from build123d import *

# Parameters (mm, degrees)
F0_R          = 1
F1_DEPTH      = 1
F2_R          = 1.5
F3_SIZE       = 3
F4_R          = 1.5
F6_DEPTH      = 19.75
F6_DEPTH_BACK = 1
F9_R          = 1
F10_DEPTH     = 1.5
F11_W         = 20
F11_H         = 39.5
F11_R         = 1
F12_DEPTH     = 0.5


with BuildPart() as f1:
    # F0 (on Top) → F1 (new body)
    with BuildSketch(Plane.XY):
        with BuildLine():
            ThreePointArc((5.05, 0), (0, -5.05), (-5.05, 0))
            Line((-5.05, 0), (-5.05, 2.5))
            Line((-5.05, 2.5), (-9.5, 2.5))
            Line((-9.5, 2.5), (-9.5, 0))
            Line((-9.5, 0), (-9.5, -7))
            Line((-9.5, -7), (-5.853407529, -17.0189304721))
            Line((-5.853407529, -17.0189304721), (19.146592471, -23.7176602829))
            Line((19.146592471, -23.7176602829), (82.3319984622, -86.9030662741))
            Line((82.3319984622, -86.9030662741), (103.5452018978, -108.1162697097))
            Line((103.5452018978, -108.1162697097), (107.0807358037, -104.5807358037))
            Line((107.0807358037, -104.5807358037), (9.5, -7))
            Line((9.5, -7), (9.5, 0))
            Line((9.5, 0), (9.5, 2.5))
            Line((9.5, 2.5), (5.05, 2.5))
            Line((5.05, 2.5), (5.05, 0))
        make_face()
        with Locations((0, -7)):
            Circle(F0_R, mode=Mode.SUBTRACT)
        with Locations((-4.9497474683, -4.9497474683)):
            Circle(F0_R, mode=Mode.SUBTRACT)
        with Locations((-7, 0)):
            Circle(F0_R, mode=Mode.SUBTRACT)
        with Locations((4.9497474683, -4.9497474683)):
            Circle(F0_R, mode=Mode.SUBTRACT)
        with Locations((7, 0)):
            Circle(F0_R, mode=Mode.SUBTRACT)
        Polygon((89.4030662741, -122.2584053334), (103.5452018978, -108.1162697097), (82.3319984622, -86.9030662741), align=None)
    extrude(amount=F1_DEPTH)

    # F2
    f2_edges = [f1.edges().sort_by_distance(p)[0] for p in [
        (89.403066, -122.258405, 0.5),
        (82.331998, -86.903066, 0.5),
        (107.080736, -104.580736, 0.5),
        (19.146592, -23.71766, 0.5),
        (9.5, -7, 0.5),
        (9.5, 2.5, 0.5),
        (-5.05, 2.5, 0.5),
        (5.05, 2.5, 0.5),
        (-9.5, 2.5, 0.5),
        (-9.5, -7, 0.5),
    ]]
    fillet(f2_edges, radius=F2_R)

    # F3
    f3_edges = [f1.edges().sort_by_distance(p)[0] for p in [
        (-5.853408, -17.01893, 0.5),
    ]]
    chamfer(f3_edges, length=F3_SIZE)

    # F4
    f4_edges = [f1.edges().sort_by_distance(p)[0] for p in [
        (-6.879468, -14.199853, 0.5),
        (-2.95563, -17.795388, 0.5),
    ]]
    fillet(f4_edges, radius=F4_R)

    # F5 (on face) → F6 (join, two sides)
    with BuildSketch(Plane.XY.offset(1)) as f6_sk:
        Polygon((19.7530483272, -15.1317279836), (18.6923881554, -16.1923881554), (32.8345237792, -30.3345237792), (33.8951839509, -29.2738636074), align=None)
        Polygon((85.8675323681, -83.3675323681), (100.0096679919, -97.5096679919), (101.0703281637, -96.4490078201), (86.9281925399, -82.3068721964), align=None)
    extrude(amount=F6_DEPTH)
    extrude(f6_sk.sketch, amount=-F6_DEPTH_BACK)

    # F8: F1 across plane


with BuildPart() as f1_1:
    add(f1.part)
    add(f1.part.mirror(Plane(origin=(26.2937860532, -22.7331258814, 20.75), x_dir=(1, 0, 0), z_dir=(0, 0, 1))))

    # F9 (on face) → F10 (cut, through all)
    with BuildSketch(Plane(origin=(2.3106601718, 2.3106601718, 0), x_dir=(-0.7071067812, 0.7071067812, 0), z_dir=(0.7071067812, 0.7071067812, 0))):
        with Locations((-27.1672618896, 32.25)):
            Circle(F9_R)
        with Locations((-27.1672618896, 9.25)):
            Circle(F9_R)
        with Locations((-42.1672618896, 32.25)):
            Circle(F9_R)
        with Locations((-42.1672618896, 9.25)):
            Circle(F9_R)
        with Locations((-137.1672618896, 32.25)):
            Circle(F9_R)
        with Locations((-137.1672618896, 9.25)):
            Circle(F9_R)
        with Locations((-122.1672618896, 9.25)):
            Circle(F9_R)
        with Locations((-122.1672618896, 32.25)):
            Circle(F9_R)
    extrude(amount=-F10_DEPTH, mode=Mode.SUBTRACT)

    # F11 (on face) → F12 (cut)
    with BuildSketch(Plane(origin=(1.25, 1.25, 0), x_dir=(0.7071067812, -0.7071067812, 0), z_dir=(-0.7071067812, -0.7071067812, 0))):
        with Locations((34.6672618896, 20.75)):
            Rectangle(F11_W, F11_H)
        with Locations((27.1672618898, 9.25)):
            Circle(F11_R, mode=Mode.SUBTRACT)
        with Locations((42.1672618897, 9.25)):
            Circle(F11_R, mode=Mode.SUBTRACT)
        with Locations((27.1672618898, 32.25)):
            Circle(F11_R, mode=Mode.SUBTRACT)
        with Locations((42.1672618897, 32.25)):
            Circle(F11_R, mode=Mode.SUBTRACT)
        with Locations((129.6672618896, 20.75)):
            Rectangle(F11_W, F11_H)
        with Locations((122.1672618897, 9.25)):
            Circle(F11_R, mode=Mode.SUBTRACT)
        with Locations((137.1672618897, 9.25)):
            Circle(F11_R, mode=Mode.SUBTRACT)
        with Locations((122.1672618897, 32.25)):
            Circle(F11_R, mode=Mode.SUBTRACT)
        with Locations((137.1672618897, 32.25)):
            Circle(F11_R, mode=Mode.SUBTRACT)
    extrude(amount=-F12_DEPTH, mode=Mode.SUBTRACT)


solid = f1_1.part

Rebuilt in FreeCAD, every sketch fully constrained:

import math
import FreeCAD as App
import Part
import Sketcher
Q = App.Units.Quantity


def edges_at(feature, points):
    """Names of the edges that pass closest to the given points."""
    edges = feature.Shape.Edges
    near = lambda p: min(range(len(edges)), key=lambda i: edges[i].distToShape(Part.Vertex(*p))[0])
    return sorted({f"Edge{near(p) + 1}" for p in points})

doc = App.newDocument("Part")
body = doc.addObject("PartDesign::Body", "Body")

sketch1 = doc.addObject("Sketcher::SketchObject", "Sketch")
body.addObject(sketch1)
sketch1.AttachmentSupport = (doc.XY_Plane, [""])
sketch1.MapMode = "FlatFace"
sketch1.addGeometry([
    Part.ArcOfCircle(Part.Circle(App.Vector(0, 0, 0), App.Vector(0, 0, 1), 5.05), math.radians(180), math.radians(360)),
    Part.LineSegment(App.Vector(-5.05, 0, 0), App.Vector(-5.05, 2.5, 0)),
    Part.LineSegment(App.Vector(-5.05, 2.5, 0), App.Vector(-9.5, 2.5, 0)),
    Part.LineSegment(App.Vector(-9.5, 2.5, 0), App.Vector(-9.5, -7, 0)),
    Part.LineSegment(App.Vector(-9.5, -7, 0), App.Vector(-5.853408, -17.01893, 0)),
    Part.LineSegment(App.Vector(-5.853408, -17.01893, 0), App.Vector(19.146592, -23.71766, 0)),
    Part.LineSegment(App.Vector(19.146592, -23.71766, 0), App.Vector(82.331998, -86.903066, 0)),
    Part.LineSegment(App.Vector(82.331998, -86.903066, 0), App.Vector(89.403066, -122.258405, 0)),
    Part.LineSegment(App.Vector(89.403066, -122.258405, 0), App.Vector(103.545202, -108.11627, 0)),
    Part.LineSegment(App.Vector(103.545202, -108.11627, 0), App.Vector(107.080736, -104.580736, 0)),
    Part.LineSegment(App.Vector(107.080736, -104.580736, 0), App.Vector(9.5, -7, 0)),
    Part.LineSegment(App.Vector(9.5, -7, 0), App.Vector(9.5, 2.5, 0)),
    Part.LineSegment(App.Vector(9.5, 2.5, 0), App.Vector(5.05, 2.5, 0)),
    Part.LineSegment(App.Vector(5.05, 2.5, 0), App.Vector(5.05, 0, 0)),
    Part.Circle(App.Vector(-4.949747, -4.949747, 0), App.Vector(0, 0, 1), 1),
    Part.Circle(App.Vector(0, -7, 0), App.Vector(0, 0, 1), 1),
    Part.Circle(App.Vector(4.949747, -4.949747, 0), App.Vector(0, 0, 1), 1),
    Part.Circle(App.Vector(-7, 0, 0), App.Vector(0, 0, 1), 1),
    Part.Circle(App.Vector(7, 0, 0), App.Vector(0, 0, 1), 1),
], False)
sketch1.addConstraint([
    Sketcher.Constraint("Tangent", 0, 1, 1, 1),
    Sketcher.Constraint("Coincident", 1, 2, 2, 1),
    Sketcher.Constraint("Coincident", 2, 2, 3, 1),
    Sketcher.Constraint("Coincident", 3, 2, 4, 1),
    Sketcher.Constraint("Coincident", 4, 2, 5, 1),
    Sketcher.Constraint("Coincident", 5, 2, 6, 1),
    Sketcher.Constraint("Coincident", 6, 2, 7, 1),
    Sketcher.Constraint("Coincident", 7, 2, 8, 1),
    Sketcher.Constraint("Coincident", 8, 2, 9, 1),
    Sketcher.Constraint("Coincident", 9, 2, 10, 1),
    Sketcher.Constraint("Coincident", 10, 2, 11, 1),
    Sketcher.Constraint("Coincident", 11, 2, 12, 1),
    Sketcher.Constraint("Coincident", 12, 2, 13, 1),
    Sketcher.Constraint("Tangent", 13, 2, 0, 2),
    Sketcher.Constraint("Vertical", 1),
    Sketcher.Constraint("Horizontal", 2),
    Sketcher.Constraint("Vertical", 3),
    Sketcher.Constraint("Vertical", 11),
    Sketcher.Constraint("Horizontal", 12),
    Sketcher.Constraint("Vertical", 13),
    Sketcher.Constraint("Coincident", 0, 3, -1, 1),
    Sketcher.Constraint("Equal", 14, 15),
    Sketcher.Constraint("Equal", 15, 16),
    Sketcher.Constraint("Equal", 16, 17),
    Sketcher.Constraint("Equal", 17, 18),
    Sketcher.Constraint("Symmetric", 17, 3, 18, 3, -1, 1),
    Sketcher.Constraint("Symmetric", 14, 3, 16, 3, -2),
    Sketcher.Constraint("Symmetric", 3, 2, 10, 2, -2),
    Sketcher.Constraint("PointOnObject", 15, 3, -2),
    Sketcher.Constraint("PointOnObject", 17, 3, -1),
    Sketcher.Constraint("Perpendicular", 6, 8),
    Sketcher.Constraint("Parallel", 8, 9),
    Sketcher.Constraint("Perpendicular", 9, 10),
    Sketcher.Constraint("Horizontal", 15, 3, 3, 2),
    Sketcher.Constraint("Horizontal", 2, 2, 11, 2),
    Sketcher.Constraint("Diameter", 14, Q("2 mm")),
    Sketcher.Constraint("Angle", 4, Q("-70 deg")),
    Sketcher.Constraint("Angle", 5, Q("-15 deg")),
    Sketcher.Constraint("Angle", 6, Q("-45 deg")),
    Sketcher.Constraint("Radius", 0, Q("5.05 mm")),
    Sketcher.Constraint("Distance", 8, Q("20 mm")),
    Sketcher.Constraint("Distance", 9, Q("5 mm")),
    Sketcher.Constraint("Distance", 10, Q("138 mm")),
    Sketcher.Constraint("DistanceY", 1, 1, 1, 2, Q("2.5 mm")),
    Sketcher.Constraint("DistanceY", 3, 2, 3, 1, Q("9.5 mm")),
    Sketcher.Constraint("DistanceX", 17, 3, -1, 1, Q("7 mm")),
    Sketcher.Constraint("DistanceX", 4, 2, 5, 2, Q("25 mm")),
    Sketcher.Constraint("DistanceX", 2, 2, 2, 1, Q("4.45 mm")),
    Sketcher.Constraint("DistanceX", -1, 1, 6, 2, Q("82.331998 mm")),
    Sketcher.Constraint("Distance", 6, Q("89.357658 mm")),
    Sketcher.Constraint("DistanceX", 4, 2, 14, 3, Q("0.90366 mm")),
    Sketcher.Constraint("DistanceY", 6, 2, 16, 3, Q("81.953319 mm")),
])
pad1 = doc.addObject("PartDesign::Pad", "Pad")
body.addObject(pad1)
pad1.Profile = sketch1
pad1.Length = 1
doc.recompute()

fillet = doc.addObject("PartDesign::Fillet", "Fillet")
body.addObject(fillet)
fillet.Base = (pad1, edges_at(pad1, [
    (89.403, -122.258, 0.5),
    (82.332, -86.903, 0.5),
    (107.081, -104.581, 0.5),
    (19.147, -23.718, 0.5),
    (9.5, -7, 0.5),
    (9.5, 2.5, 0.5),
    (-5.05, 2.5, 0.5),
    (5.05, 2.5, 0.5),
    (-9.5, 2.5, 0.5),
    (-9.5, -7, 0.5),
]))
fillet.Radius = 1.5
doc.recompute()

chamfer = doc.addObject("PartDesign::Chamfer", "Chamfer")
body.addObject(chamfer)
chamfer.Base = (fillet, edges_at(fillet, [(-5.853, -17.019, 0.5)]))
chamfer.Size = 3
doc.recompute()

fillet2 = doc.addObject("PartDesign::Fillet", "Fillet001")
body.addObject(fillet2)
fillet2.Base = (chamfer, edges_at(chamfer, [(-6.879, -14.2, 0.5), (-2.956, -17.795, 0.5)]))
fillet2.Radius = 1.5

sketch2 = doc.addObject("Sketcher::SketchObject", "Sketch001")
body.addObject(sketch2)
sketch2.AttachmentSupport = (doc.XY_Plane, [""])
sketch2.MapMode = "FlatFace"
sketch2.AttachmentOffset = App.Placement(App.Vector(0, 0, 1), App.Rotation())
sketch2.addGeometry([
    Part.LineSegment(App.Vector(19.753048, -15.131728, 0), App.Vector(18.692388, -16.192388, 0)),
    Part.LineSegment(App.Vector(18.692388, -16.192388, 0), App.Vector(32.834524, -30.334524, 0)),
    Part.LineSegment(App.Vector(32.834524, -30.334524, 0), App.Vector(33.895184, -29.273864, 0)),
    Part.LineSegment(App.Vector(33.895184, -29.273864, 0), App.Vector(19.753048, -15.131728, 0)),
    Part.LineSegment(App.Vector(85.867532, -83.367532, 0), App.Vector(100.009668, -97.509668, 0)),
    Part.LineSegment(App.Vector(100.009668, -97.509668, 0), App.Vector(101.070328, -96.449008, 0)),
    Part.LineSegment(App.Vector(101.070328, -96.449008, 0), App.Vector(86.928193, -82.306872, 0)),
    Part.LineSegment(App.Vector(86.928193, -82.306872, 0), App.Vector(85.867532, -83.367532, 0)),
], False)
sketch2.addConstraint([
    Sketcher.Constraint("Coincident", 0, 2, 1, 1),
    Sketcher.Constraint("Coincident", 1, 2, 2, 1),
    Sketcher.Constraint("Coincident", 2, 2, 3, 1),
    Sketcher.Constraint("Coincident", 3, 2, 0, 1),
    Sketcher.Constraint("Coincident", 4, 2, 5, 1),
    Sketcher.Constraint("Coincident", 5, 2, 6, 1),
    Sketcher.Constraint("Coincident", 6, 2, 7, 1),
    Sketcher.Constraint("Coincident", 7, 2, 4, 1),
    Sketcher.Constraint("Perpendicular", 0, 1),
    Sketcher.Constraint("Perpendicular", 1, 2),
    Sketcher.Constraint("Perpendicular", 2, 3),
    Sketcher.Constraint("Parallel", 3, 4),
    Sketcher.Constraint("Perpendicular", 4, 5),
    Sketcher.Constraint("Perpendicular", 5, 6),
    Sketcher.Constraint("Perpendicular", 6, 7),
    Sketcher.Constraint("Equal", 3, 4),
    Sketcher.Constraint("Equal", 2, 5),
    Sketcher.Constraint("Angle", 0, Q("-135 deg")),
    Sketcher.Constraint("Distance", 1, Q("20 mm")),
    Sketcher.Constraint("Distance", 0, Q("1.5 mm")),
    Sketcher.Constraint("DistanceX", -1, 1, 0, 2, Q("18.692388 mm")),
    Sketcher.Constraint("DistanceY", 0, 2, -1, 1, Q("16.192388 mm")),
    Sketcher.Constraint("DistanceX", -1, 1, 5, 2, Q("101.070328 mm")),
    Sketcher.Constraint("DistanceY", 4, 2, 0, 2, Q("81.31728 mm")),
])
pad2 = doc.addObject("PartDesign::Pad", "Pad001")
body.addObject(pad2)
pad2.Profile = sketch2
pad2.Type = "TwoLengths"
pad2.Length = 19.75
pad2.Length2 = 1
body2 = doc.addObject("PartDesign::Body", "Body001")
doc.recompute()

body2.BaseFeature = body
doc.recompute()

mirroring = doc.addObject("Part::Mirroring", "Mirroring")
mirroring.Source = body
mirroring.Base = App.Vector(26.293786, -22.733126, 20.75)
mirroring.Normal = App.Vector(0, 0, 1)
body3 = doc.addObject("PartDesign::Body", "Body002")
body3.BaseFeature = mirroring
boolean = doc.addObject("PartDesign::Boolean", "Boolean")
body2.addObject(boolean)
boolean.Type = "Fuse"
boolean.addObjects([body3])
doc.recompute()

sketch3 = doc.addObject("Sketcher::SketchObject", "Sketch002")
body2.addObject(sketch3)
sketch3.Placement = App.Placement(App.Vector(2.31066, 2.31066, 0), App.Rotation(App.Vector(-0.707106781, 0.707106781, 0), App.Vector(0, 0, 0.999999999), App.Vector(0.707106781, 0.707106781, 0), "ZXY"))
sketch3.addGeometry([
    Part.Circle(App.Vector(-27.167262, 32.25, 0), App.Vector(0, 0, 1), 1),
    Part.Circle(App.Vector(-27.167262, 9.25, 0), App.Vector(0, 0, 1), 1),
    Part.Circle(App.Vector(-42.167262, 32.25, 0), App.Vector(0, 0, 1), 1),
    Part.Circle(App.Vector(-42.167262, 9.25, 0), App.Vector(0, 0, 1), 1),
    Part.Circle(App.Vector(-137.167262, 32.25, 0), App.Vector(0, 0, 1), 1),
    Part.Circle(App.Vector(-137.167262, 9.25, 0), App.Vector(0, 0, 1), 1),
    Part.Circle(App.Vector(-122.167262, 9.25, 0), App.Vector(0, 0, 1), 1),
    Part.Circle(App.Vector(-122.167262, 32.25, 0), App.Vector(0, 0, 1), 1),
], False)
sketch3.addConstraint([
    Sketcher.Constraint("Equal", 0, 1),
    Sketcher.Constraint("Equal", 1, 2),
    Sketcher.Constraint("Equal", 2, 3),
    Sketcher.Constraint("Equal", 3, 4),
    Sketcher.Constraint("Equal", 4, 5),
    Sketcher.Constraint("Equal", 5, 6),
    Sketcher.Constraint("Equal", 6, 7),
    Sketcher.Constraint("Horizontal", 0, 3, 2, 3),
    Sketcher.Constraint("Horizontal", 1, 3, 3, 3),
    Sketcher.Constraint("Horizontal", 2, 3, 4, 3),
    Sketcher.Constraint("Horizontal", 3, 3, 5, 3),
    Sketcher.Constraint("Horizontal", 5, 3, 6, 3),
    Sketcher.Constraint("Horizontal", 4, 3, 7, 3),
    Sketcher.Constraint("Vertical", 0, 3, 1, 3),
    Sketcher.Constraint("Vertical", 2, 3, 3, 3),
    Sketcher.Constraint("Vertical", 4, 3, 5, 3),
    Sketcher.Constraint("Vertical", 6, 3, 7, 3),
    Sketcher.Constraint("Diameter", 0, Q("2 mm")),
    Sketcher.Constraint("DistanceY", 1, 3, 0, 3, Q("23 mm")),
    Sketcher.Constraint("DistanceX", 2, 3, 0, 3, Q("15 mm")),
    Sketcher.Constraint("DistanceX", 4, 3, 2, 3, Q("95 mm")),
    Sketcher.Constraint("DistanceX", 5, 3, 6, 3, Q("15 mm")),
    Sketcher.Constraint("DistanceY", -1, 1, 0, 3, Q("32.25 mm")),
    Sketcher.Constraint("DistanceX", 0, 3, -1, 1, Q("27.167262 mm")),
])
pocket1 = doc.addObject("PartDesign::Pocket", "Pocket")
body2.addObject(pocket1)
pocket1.Profile = sketch3
pocket1.Type = "ThroughAll"

sketch4 = doc.addObject("Sketcher::SketchObject", "Sketch003")
body2.addObject(sketch4)
sketch4.Placement = App.Placement(App.Vector(1.25, 1.25, 0), App.Rotation(App.Vector(0.707106781, -0.707106781, 0), App.Vector(0, 0, 0.999999999), App.Vector(-0.707106781, -0.707106781, 0), "ZXY"))
sketch4.addGeometry([
    Part.LineSegment(App.Vector(24.667262, 40.5, 0), App.Vector(24.667262, 1, 0)),
    Part.LineSegment(App.Vector(24.667262, 1, 0), App.Vector(44.667262, 1, 0)),
    Part.LineSegment(App.Vector(44.667262, 1, 0), App.Vector(44.667262, 40.5, 0)),
    Part.LineSegment(App.Vector(44.667262, 40.5, 0), App.Vector(24.667262, 40.5, 0)),
    Part.Circle(App.Vector(27.167262, 9.25, 0), App.Vector(0, 0, 1), 1),
    Part.Circle(App.Vector(42.167262, 9.25, 0), App.Vector(0, 0, 1), 1),
    Part.Circle(App.Vector(27.167262, 32.25, 0), App.Vector(0, 0, 1), 1),
    Part.Circle(App.Vector(42.167262, 32.25, 0), App.Vector(0, 0, 1), 1),
    Part.LineSegment(App.Vector(119.667262, 40.5, 0), App.Vector(119.667262, 1, 0)),
    Part.LineSegment(App.Vector(119.667262, 1, 0), App.Vector(139.667262, 1, 0)),
    Part.LineSegment(App.Vector(139.667262, 1, 0), App.Vector(139.667262, 40.5, 0)),
    Part.LineSegment(App.Vector(139.667262, 40.5, 0), App.Vector(119.667262, 40.5, 0)),
    Part.Circle(App.Vector(122.167262, 9.25, 0), App.Vector(0, 0, 1), 1),
    Part.Circle(App.Vector(137.167262, 9.25, 0), App.Vector(0, 0, 1), 1),
    Part.Circle(App.Vector(122.167262, 32.25, 0), App.Vector(0, 0, 1), 1),
    Part.Circle(App.Vector(137.167262, 32.25, 0), App.Vector(0, 0, 1), 1),
], False)
sketch4.addConstraint([
    Sketcher.Constraint("Coincident", 0, 2, 1, 1),
    Sketcher.Constraint("Coincident", 1, 2, 2, 1),
    Sketcher.Constraint("Coincident", 2, 2, 3, 1),
    Sketcher.Constraint("Coincident", 3, 2, 0, 1),
    Sketcher.Constraint("Coincident", 8, 2, 9, 1),
    Sketcher.Constraint("Coincident", 9, 2, 10, 1),
    Sketcher.Constraint("Coincident", 10, 2, 11, 1),
    Sketcher.Constraint("Coincident", 11, 2, 8, 1),
    Sketcher.Constraint("Vertical", 0),
    Sketcher.Constraint("Horizontal", 1),
    Sketcher.Constraint("Vertical", 2),
    Sketcher.Constraint("Horizontal", 3),
    Sketcher.Constraint("Vertical", 8),
    Sketcher.Constraint("Horizontal", 9),
    Sketcher.Constraint("Vertical", 10),
    Sketcher.Constraint("Horizontal", 11),
    Sketcher.Constraint("Equal", 4, 5),
    Sketcher.Constraint("Equal", 5, 6),
    Sketcher.Constraint("Equal", 6, 7),
    Sketcher.Constraint("Equal", 7, 12),
    Sketcher.Constraint("Equal", 12, 13),
    Sketcher.Constraint("Equal", 13, 14),
    Sketcher.Constraint("Equal", 14, 15),
    Sketcher.Constraint("Horizontal", 4, 3, 5, 3),
    Sketcher.Constraint("Horizontal", 6, 3, 7, 3),
    Sketcher.Constraint("Horizontal", 5, 3, 12, 3),
    Sketcher.Constraint("Horizontal", 12, 3, 13, 3),
    Sketcher.Constraint("Horizontal", 7, 3, 14, 3),
    Sketcher.Constraint("Horizontal", 14, 3, 15, 3),
    Sketcher.Constraint("Horizontal", 1, 2, 8, 2),
    Sketcher.Constraint("Horizontal", 3, 2, 10, 2),
    Sketcher.Constraint("Vertical", 4, 3, 6, 3),
    Sketcher.Constraint("Vertical", 5, 3, 7, 3),
    Sketcher.Constraint("Vertical", 12, 3, 14, 3),
    Sketcher.Constraint("Vertical", 13, 3, 15, 3),
    Sketcher.Constraint("Equal", 3, 9),
    Sketcher.Constraint("Diameter", 4, Q("2 mm")),
    Sketcher.Constraint("DistanceX", 1, 1, 1, 2, Q("20 mm")),
    Sketcher.Constraint("DistanceY", 0, 2, 0, 1, Q("39.5 mm")),
    Sketcher.Constraint("DistanceY", -1, 1, 0, 2, Q("1 mm")),
    Sketcher.Constraint("DistanceX", 4, 3, 5, 3, Q("15 mm")),
    Sketcher.Constraint("DistanceY", 4, 3, 6, 3, Q("23 mm")),
    Sketcher.Constraint("DistanceX", 5, 3, 12, 3, Q("80 mm")),
    Sketcher.Constraint("DistanceX", 12, 3, 13, 3, Q("15 mm")),
    Sketcher.Constraint("DistanceX", 1, 2, 8, 2, Q("75 mm")),
    Sketcher.Constraint("DistanceX", 0, 2, 4, 3, Q("2.5 mm")),
    Sketcher.Constraint("DistanceY", -1, 1, 4, 3, Q("9.25 mm")),
    Sketcher.Constraint("DistanceX", -1, 1, 4, 3, Q("27.167262 mm")),
])
pocket2 = doc.addObject("PartDesign::Pocket", "Pocket001")
body2.addObject(pocket2)
pocket2.Profile = sketch4
pocket2.Length = 0.5
mirroring.Visibility = False

doc.recompute()
